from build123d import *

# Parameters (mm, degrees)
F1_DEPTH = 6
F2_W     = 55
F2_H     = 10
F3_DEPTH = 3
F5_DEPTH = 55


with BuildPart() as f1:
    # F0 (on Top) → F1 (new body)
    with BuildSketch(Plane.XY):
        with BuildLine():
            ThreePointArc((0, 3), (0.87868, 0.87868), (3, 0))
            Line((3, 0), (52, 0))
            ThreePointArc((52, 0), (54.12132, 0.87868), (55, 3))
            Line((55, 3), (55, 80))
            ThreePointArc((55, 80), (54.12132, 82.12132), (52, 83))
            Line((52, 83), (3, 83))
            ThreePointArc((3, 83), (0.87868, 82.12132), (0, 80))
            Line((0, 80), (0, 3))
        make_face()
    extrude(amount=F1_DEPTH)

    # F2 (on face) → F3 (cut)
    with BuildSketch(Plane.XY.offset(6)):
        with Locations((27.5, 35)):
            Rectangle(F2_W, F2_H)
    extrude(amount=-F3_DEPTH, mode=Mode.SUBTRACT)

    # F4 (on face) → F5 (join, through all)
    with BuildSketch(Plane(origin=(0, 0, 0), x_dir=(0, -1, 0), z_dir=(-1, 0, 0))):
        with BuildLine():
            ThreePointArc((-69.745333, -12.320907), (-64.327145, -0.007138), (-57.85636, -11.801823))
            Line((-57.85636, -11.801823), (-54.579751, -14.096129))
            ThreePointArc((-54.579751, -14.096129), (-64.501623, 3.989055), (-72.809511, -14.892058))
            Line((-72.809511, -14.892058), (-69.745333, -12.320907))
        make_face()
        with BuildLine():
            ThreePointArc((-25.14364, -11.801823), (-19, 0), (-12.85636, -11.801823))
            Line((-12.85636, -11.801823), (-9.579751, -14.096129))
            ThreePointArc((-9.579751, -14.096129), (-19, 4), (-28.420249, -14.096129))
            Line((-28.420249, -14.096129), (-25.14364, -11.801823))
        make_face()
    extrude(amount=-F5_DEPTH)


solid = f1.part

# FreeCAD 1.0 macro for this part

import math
import FreeCAD as App
import Part
import Sketcher

V = App.Vector
Q = App.Units.Quantity


def add_polygon(sketch, points):
    """Adds a closed chain of lines whose ends are joined by coincident constraints."""
    first, n = sketch.GeometryCount, len(points)
    for a, b in zip(points, points[1:] + points[:1]):
        sketch.addGeometry(Part.LineSegment(App.Vector(*a, 0), App.Vector(*b, 0)), False)
    for i in range(n):
        sketch.addConstraint(Sketcher.Constraint("Coincident", first + i, 2, first + (i + 1) % n, 1))

doc = App.newDocument("Part")
body = doc.addObject("PartDesign::Body", "Body")

# Sketch on XY plane
sketch1 = doc.addObject("Sketcher::SketchObject", "Sketch")
body.addObject(sketch1)
sketch1.AttachmentSupport = (doc.XY_Plane, [""])
sketch1.MapMode = "FlatFace"
sketch1.addGeometry([
    Part.ArcOfCircle(Part.Circle(V(3.000001, 3.000001, 0), V(0, 0, 1), 3.000001), math.radians(-179.999978), math.radians(-90.000022)),  # 0
    Part.LineSegment(V(3, 0, 0), V(52, 0, 0)),  # 1
    Part.ArcOfCircle(Part.Circle(V(51.999999, 3.000001, 0), V(0, 0, 1), 3.000001), math.radians(-89.999978), math.radians(-0.000022)),  # 2
    Part.LineSegment(V(55, 3, 0), V(55, 80, 0)),  # 3
    Part.ArcOfCircle(Part.Circle(V(51.999999, 79.999999, 0), V(0, 0, 1), 3.000001), math.radians(0.000022), math.radians(89.999978)),  # 4
    Part.LineSegment(V(52, 83, 0), V(3, 83, 0)),  # 5
    Part.ArcOfCircle(Part.Circle(V(3.000001, 79.999999, 0), V(0, 0, 1), 3.000001), math.radians(90.000022), math.radians(179.999978)),  # 6
    Part.LineSegment(V(0, 80, 0), V(0, 3, 0)),  # 7
], False)
sketch1.addConstraint([
    Sketcher.Constraint("Tangent", 0, 2, 1, 1),
    Sketcher.Constraint("Tangent", 1, 2, 2, 1),
    Sketcher.Constraint("Tangent", 2, 2, 3, 1),
    Sketcher.Constraint("Tangent", 3, 2, 4, 1),
    Sketcher.Constraint("Tangent", 4, 2, 5, 1),
    Sketcher.Constraint("Tangent", 5, 2, 6, 1),
    Sketcher.Constraint("Tangent", 6, 2, 7, 1),
    Sketcher.Constraint("Tangent", 7, 2, 0, 1),
    Sketcher.Constraint("Horizontal", 1),
    Sketcher.Constraint("Vertical", 3),
    Sketcher.Constraint("Horizontal", 5),
    Sketcher.Constraint("Vertical", 7),
    Sketcher.Constraint("Equal", 0, 2),
    Sketcher.Constraint("Equal", 2, 4),
    Sketcher.Constraint("Equal", 4, 6),
    Sketcher.Constraint("PointOnObject", 0, 2, -1),
    Sketcher.Constraint("PointOnObject", 6, 2, -2),
    Sketcher.Constraint("Radius", 0, 3.000001),
    Sketcher.Constraint("DistanceX", 1, 1, 1, 2, 49.0),
    Sketcher.Constraint("DistanceY", 3, 1, 3, 2, 77.0),
])
pad1 = doc.addObject("PartDesign::Pad", "Pad")
body.addObject(pad1)
pad1.Profile = sketch1
pad1.Length = 6

# Sketch on XY plane
sketch2 = doc.addObject("Sketcher::SketchObject", "Sketch001")
body.addObject(sketch2)
sketch2.AttachmentSupport = (doc.XY_Plane, [""])
sketch2.MapMode = "FlatFace"
sketch2.AttachmentOffset = App.Placement(V(0, 0, 6), App.Rotation())
add_polygon(sketch2, [(0, 40), (0, 30), (55, 30), (55, 40)])  # lines 0-3
sketch2.addConstraint([
    Sketcher.Constraint("Vertical", 0),
    Sketcher.Constraint("Horizontal", 1),
    Sketcher.Constraint("Vertical", 2),
    Sketcher.Constraint("Horizontal", 3),
    Sketcher.Constraint("PointOnObject", 0, 2, -2),
    Sketcher.Constraint("DistanceX", 1, 1, 1, 2, 55.0),
    Sketcher.Constraint("DistanceY", 0, 2, 0, 1, 10.0),
    Sketcher.Constraint("DistanceY", -1, 1, 0, 2, 30.0),
])
pocket1 = doc.addObject("PartDesign::Pocket", "Pocket")
body.addObject(pocket1)
pocket1.Profile = sketch2
pocket1.Length = 3

# Sketch on YZ plane
sketch3 = doc.addObject("Sketcher::SketchObject", "Sketch002")
body.addObject(sketch3)
sketch3.AttachmentSupport = (doc.YZ_Plane, [""])
sketch3.MapMode = "FlatFace"
sketch3.addGeometry([
    Part.ArcOfCircle(Part.Circle(V(64, -7.5, 0), V(0, 0, 1), 7.5), math.radians(-40.000004), math.radians(215.000002)),  # 0
    Part.LineSegment(V(57.85636, -11.801823, 0), V(54.579751, -14.096129, 0)),  # 1
    Part.ArcOfCircle(Part.Circle(V(64, -7.5, 0), V(0, 0, 1), 11.5), math.radians(-40.000002), math.radians(214.999999)),  # 2
    Part.LineSegment(V(72.809511, -14.892058, 0), V(69.745333, -12.320907, 0)),  # 3
    Part.ArcOfCircle(Part.Circle(V(19, -7.5, 0), V(0, 0, 1), 7.5), math.radians(-35.000001), math.radians(215.000001)),  # 4
    Part.LineSegment(V(12.85636, -11.801823, 0), V(9.579751, -14.096129, 0)),  # 5
    Part.ArcOfCircle(Part.Circle(V(19, -7.5, 0), V(0, 0, 1), 11.5), math.radians(-34.999998), math.radians(214.999998)),  # 6
    Part.LineSegment(V(28.420249, -14.096129, 0), V(25.14364, -11.801823, 0)),  # 7
], False)
sketch3.addConstraint([
    Sketcher.Constraint("Coincident", 0, 2, 1, 1),
    Sketcher.Constraint("Coincident", 1, 2, 2, 2),
    Sketcher.Constraint("Coincident", 2, 1, 3, 1),
    Sketcher.Constraint("Coincident", 3, 2, 0, 1),
    Sketcher.Constraint("Coincident", 4, 2, 5, 1),
    Sketcher.Constraint("Coincident", 5, 2, 6, 2),
    Sketcher.Constraint("Coincident", 6, 1, 7, 1),
    Sketcher.Constraint("Coincident", 7, 2, 4, 1),
    Sketcher.Constraint("Coincident", 2, 3, 0, 3),
    Sketcher.Constraint("Coincident", 6, 3, 4, 3),
    Sketcher.Constraint("Equal", 0, 4),
    Sketcher.Constraint("Equal", 2, 6),
    Sketcher.Constraint("Parallel", 1, 5),
    Sketcher.Constraint("Horizontal", 2, 3, 4, 3),
    Sketcher.Constraint("Horizontal", 0, 2, 4, 2),
    Sketcher.Constraint("Horizontal", 5, 2, 6, 1),
    Sketcher.Constraint("Horizontal", 4, 2, 7, 2),
    Sketcher.Constraint("Radius", 0, 7.5),
    Sketcher.Constraint("Radius", 2, 11.5),
    Sketcher.Constraint("Angle", 1, Q("-145.000004 deg")),
    Sketcher.Constraint("Angle", 3, Q("139.999996 deg")),
    Sketcher.Constraint("DistanceX", -1, 1, 0, 3, 64.0),
    Sketcher.Constraint("DistanceX", -1, 1, 4, 3, 19.0),
    Sketcher.Constraint("DistanceY", 0, 3, -1, 1, 7.5),
    Sketcher.Constraint("DistanceX", 5, 2, 6, 1, 18.840498),
    Sketcher.Constraint("DistanceX", -1, 1, 2, 1, 72.809511),
])
pad2 = doc.addObject("PartDesign::Pad", "Pad001")
body.addObject(pad2)
pad2.Profile = sketch3
pad2.Length = 55

doc.recompute()
